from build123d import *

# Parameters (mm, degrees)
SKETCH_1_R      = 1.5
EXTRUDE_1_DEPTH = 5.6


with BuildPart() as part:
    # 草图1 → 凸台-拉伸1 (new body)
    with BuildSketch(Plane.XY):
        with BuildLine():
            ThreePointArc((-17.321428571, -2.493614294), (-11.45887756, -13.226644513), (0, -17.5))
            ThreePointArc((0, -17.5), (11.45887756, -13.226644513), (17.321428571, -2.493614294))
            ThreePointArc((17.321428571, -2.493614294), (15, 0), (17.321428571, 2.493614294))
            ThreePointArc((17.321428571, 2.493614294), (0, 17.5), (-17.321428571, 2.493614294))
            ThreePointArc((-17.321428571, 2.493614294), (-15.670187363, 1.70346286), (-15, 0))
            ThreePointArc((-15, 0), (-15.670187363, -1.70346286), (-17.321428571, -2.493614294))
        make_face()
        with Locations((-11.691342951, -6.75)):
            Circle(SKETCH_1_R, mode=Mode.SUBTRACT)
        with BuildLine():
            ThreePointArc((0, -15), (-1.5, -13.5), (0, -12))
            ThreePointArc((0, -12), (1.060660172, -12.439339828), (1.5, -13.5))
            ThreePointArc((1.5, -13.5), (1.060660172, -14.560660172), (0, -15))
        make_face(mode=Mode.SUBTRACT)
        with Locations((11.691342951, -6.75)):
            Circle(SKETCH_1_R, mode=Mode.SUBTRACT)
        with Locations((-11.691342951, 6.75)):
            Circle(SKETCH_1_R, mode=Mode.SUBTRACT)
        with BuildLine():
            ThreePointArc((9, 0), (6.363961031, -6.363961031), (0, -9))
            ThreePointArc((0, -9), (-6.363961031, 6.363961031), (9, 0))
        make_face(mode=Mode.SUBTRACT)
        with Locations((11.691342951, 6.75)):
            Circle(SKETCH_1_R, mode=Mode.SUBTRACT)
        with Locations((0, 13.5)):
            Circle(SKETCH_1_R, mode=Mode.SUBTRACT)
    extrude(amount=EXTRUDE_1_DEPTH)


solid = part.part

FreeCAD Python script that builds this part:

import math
import FreeCAD as App
import Part
import Sketcher
Q = App.Units.Quantity

doc = App.newDocument("Part")
params = doc.addObject("Spreadsheet::Sheet", "Params")
for row, (alias, value) in enumerate([
    ("sketch1_diameter", "3 mm"),
    ("sketch1_radius", "9 mm"),
    ("sketch1_radius2", "17.5 mm"),
    ("sketch1_radius3", "2.5 mm"),
    ("pad1_length", "5.6 mm"),
], start=1):
    params.set(f"A{row}", alias)
    params.set(f"B{row}", "=" + value)
    params.setAlias(f"B{row}", alias)

body = doc.addObject("PartDesign::Body", "Body")

# Sketch on XY plane
sketch1 = body.newObject("Sketcher::SketchObject", "Sketch")
sketch1.AttachmentSupport = (doc.getObject("XY_Plane"), [""])
sketch1.MapMode = "FlatFace"
sketch1.addGeometry(Part.ArcOfCircle(Part.Circle(App.Vector(0, 0, 0), App.Vector(0, 0, 1), 17.5), math.radians(-171.807912), math.radians(-90)), False)
sketch1.addGeometry(Part.ArcOfCircle(Part.Circle(App.Vector(0, 0, 0), App.Vector(0, 0, 1), 17.5), math.radians(-90), math.radians(-8.192088)), False)
sketch1.addGeometry(Part.ArcOfCircle(Part.Circle(App.Vector(17.5, 0, 0), App.Vector(0, 0, 1), 2.5), math.radians(94.096044), math.radians(265.903956)), False)
sketch1.addGeometry(Part.ArcOfCircle(Part.Circle(App.Vector(0, 0, 0), App.Vector(0, 0, 1), 17.5), math.radians(8.192088), math.radians(171.807912)), False)
sketch1.addGeometry(Part.ArcOfCircle(Part.Circle(App.Vector(-17.5, 0, 0), App.Vector(0, 0, 1), 2.5), math.radians(0), math.radians(85.903956)), False)
sketch1.addGeometry(Part.ArcOfCircle(Part.Circle(App.Vector(-17.5, 0, 0), App.Vector(0, 0, 1), 2.5), math.radians(-85.903956), math.radians(0)), False)
sketch1.addGeometry(Part.Circle(App.Vector(-11.691343, -6.75, 0), App.Vector(0, 0, 1), 1.5), False)
sketch1.addGeometry(Part.ArcOfCircle(Part.Circle(App.Vector(0, -13.5, 0), App.Vector(0, 0, 1), 1.5), math.radians(-90), math.radians(0)), False)
sketch1.addGeometry(Part.ArcOfCircle(Part.Circle(App.Vector(0, -13.5, 0), App.Vector(0, 0, 1), 1.5), math.radians(90), math.radians(270)), False)
sketch1.addGeometry(Part.ArcOfCircle(Part.Circle(App.Vector(0, -13.5, 0), App.Vector(0, 0, 1), 1.5), math.radians(0), math.radians(90)), False)
sketch1.addGeometry(Part.Circle(App.Vector(11.691343, -6.75, 0), App.Vector(0, 0, 1), 1.5), False)
sketch1.addGeometry(Part.Circle(App.Vector(-11.691343, 6.75, 0), App.Vector(0, 0, 1), 1.5), False)
sketch1.addGeometry(Part.ArcOfCircle(Part.Circle(App.Vector(0, 0, 0), App.Vector(0, 0, 1), 9), math.radians(0), math.radians(270)), False)
sketch1.addGeometry(Part.ArcOfCircle(Part.Circle(App.Vector(0, 0, 0), App.Vector(0, 0, 1), 9), math.radians(-90), math.radians(0)), False)
sketch1.addGeometry(Part.Circle(App.Vector(11.691343, 6.75, 0), App.Vector(0, 0, 1), 1.5), False)
sketch1.addGeometry(Part.Circle(App.Vector(0, 13.5, 0), App.Vector(0, 0, 1), 1.5), False)
sketch1.addConstraint(Sketcher.Constraint("Tangent", 0, 2, 1, 1))
sketch1.addConstraint(Sketcher.Constraint("Coincident", 1, 2, 2, 2))
sketch1.addConstraint(Sketcher.Constraint("Coincident", 2, 1, 3, 1))
sketch1.addConstraint(Sketcher.Constraint("Coincident", 3, 2, 4, 2))
sketch1.addConstraint(Sketcher.Constraint("Tangent", 4, 1, 5, 2))
sketch1.addConstraint(Sketcher.Constraint("Coincident", 5, 1, 0, 1))
sketch1.addConstraint(Sketcher.Constraint("Tangent", 7, 1, 8, 2))
sketch1.addConstraint(Sketcher.Constraint("Tangent", 8, 1, 9, 2))
sketch1.addConstraint(Sketcher.Constraint("Tangent", 9, 1, 7, 2))
sketch1.addConstraint(Sketcher.Constraint("Tangent", 12, 1, 13, 2))
sketch1.addConstraint(Sketcher.Constraint("Coincident", 13, 1, 12, 2))
sketch1.addConstraint(Sketcher.Constraint("Coincident", 0, 3, -1, 1))
sketch1.addConstraint(Sketcher.Constraint("Coincident", 3, 3, -1, 1))
sketch1.addConstraint(Sketcher.Constraint("Coincident", 12, 3, -1, 1))
sketch1.addConstraint(Sketcher.Constraint("Equal", 0, 1))
sketch1.addConstraint(Sketcher.Constraint("Equal", 1, 3))
sketch1.addConstraint(Sketcher.Constraint("Equal", 2, 4))
sketch1.addConstraint(Sketcher.Constraint("Equal", 4, 5))
sketch1.addConstraint(Sketcher.Constraint("Equal", 6, 7))
sketch1.addConstraint(Sketcher.Constraint("Equal", 9, 10))
sketch1.addConstraint(Sketcher.Constraint("Equal", 10, 11))
sketch1.addConstraint(Sketcher.Constraint("Equal", 11, 14))
sketch1.addConstraint(Sketcher.Constraint("Equal", 14, 15))
sketch1.addConstraint(Sketcher.Constraint("Symmetric", 2, 3, 4, 3, -1, 1))
sketch1.addConstraint(Sketcher.Constraint("Symmetric", 10, 3, 11, 3, -1, 1))
sketch1.addConstraint(Sketcher.Constraint("Symmetric", 6, 3, 14, 3, -1, 1))
sketch1.addConstraint(Sketcher.Constraint("Symmetric", 7, 3, 15, 3, -1, 1))
sketch1.addConstraint(Sketcher.Constraint("Symmetric", 6, 3, 10, 3, -2))
sketch1.addConstraint(Sketcher.Constraint("PointOnObject", 2, 3, -1))
sketch1.addConstraint(Sketcher.Constraint("PointOnObject", 7, 3, -2))
sketch1.addConstraint(Sketcher.Constraint("PointOnObject", 0, 2, -2))
sketch1.addConstraint(Sketcher.Constraint("PointOnObject", 4, 1, -1))
sketch1.addConstraint(Sketcher.Constraint("PointOnObject", 7, 1, -2))
sketch1.addConstraint(Sketcher.Constraint("PointOnObject", 8, 1, -2))
sketch1.addConstraint(Sketcher.Constraint("PointOnObject", 12, 1, -1))
sketch1.addConstraint(Sketcher.Constraint("PointOnObject", 13, 1, -2))
sketch1.addConstraint(Sketcher.Constraint("Horizontal", 8, 3, 9, 1))
sketch1.addConstraint(Sketcher.Constraint("Diameter", 6, Q("3 mm")))
sketch1.addConstraint(Sketcher.Constraint("Radius", 12, Q("9 mm")))
sketch1.addConstraint(Sketcher.Constraint("Radius", 0, Q("17.5 mm")))
sketch1.addConstraint(Sketcher.Constraint("Radius", 2, Q("2.5 mm")))
sketch1.addConstraint(Sketcher.Constraint("DistanceX", 4, 1, -1, 1, Q("15 mm")))
sketch1.addConstraint(Sketcher.Constraint("DistanceY", 7, 1, -1, 1, Q("15 mm")))
sketch1.addConstraint(Sketcher.Constraint("DistanceY", 6, 3, 11, 3, Q("13.5 mm")))
sketch1.addConstraint(Sketcher.Constraint("DistanceX", 6, 3, -1, 1, Q("11.691343 mm")))
sketch1.setExpression("Constraints[37]", "Params.sketch1_diameter")
sketch1.setExpression("Constraints[38]", "Params.sketch1_radius")
sketch1.setExpression("Constraints[39]", "Params.sketch1_radius2")
sketch1.setExpression("Constraints[40]", "Params.sketch1_radius3")
pad1 = body.newObject("PartDesign::Pad", "Pad")
pad1.Profile = sketch1
pad1.setExpression("Length", "Params.pad1_length")

doc.recompute()
